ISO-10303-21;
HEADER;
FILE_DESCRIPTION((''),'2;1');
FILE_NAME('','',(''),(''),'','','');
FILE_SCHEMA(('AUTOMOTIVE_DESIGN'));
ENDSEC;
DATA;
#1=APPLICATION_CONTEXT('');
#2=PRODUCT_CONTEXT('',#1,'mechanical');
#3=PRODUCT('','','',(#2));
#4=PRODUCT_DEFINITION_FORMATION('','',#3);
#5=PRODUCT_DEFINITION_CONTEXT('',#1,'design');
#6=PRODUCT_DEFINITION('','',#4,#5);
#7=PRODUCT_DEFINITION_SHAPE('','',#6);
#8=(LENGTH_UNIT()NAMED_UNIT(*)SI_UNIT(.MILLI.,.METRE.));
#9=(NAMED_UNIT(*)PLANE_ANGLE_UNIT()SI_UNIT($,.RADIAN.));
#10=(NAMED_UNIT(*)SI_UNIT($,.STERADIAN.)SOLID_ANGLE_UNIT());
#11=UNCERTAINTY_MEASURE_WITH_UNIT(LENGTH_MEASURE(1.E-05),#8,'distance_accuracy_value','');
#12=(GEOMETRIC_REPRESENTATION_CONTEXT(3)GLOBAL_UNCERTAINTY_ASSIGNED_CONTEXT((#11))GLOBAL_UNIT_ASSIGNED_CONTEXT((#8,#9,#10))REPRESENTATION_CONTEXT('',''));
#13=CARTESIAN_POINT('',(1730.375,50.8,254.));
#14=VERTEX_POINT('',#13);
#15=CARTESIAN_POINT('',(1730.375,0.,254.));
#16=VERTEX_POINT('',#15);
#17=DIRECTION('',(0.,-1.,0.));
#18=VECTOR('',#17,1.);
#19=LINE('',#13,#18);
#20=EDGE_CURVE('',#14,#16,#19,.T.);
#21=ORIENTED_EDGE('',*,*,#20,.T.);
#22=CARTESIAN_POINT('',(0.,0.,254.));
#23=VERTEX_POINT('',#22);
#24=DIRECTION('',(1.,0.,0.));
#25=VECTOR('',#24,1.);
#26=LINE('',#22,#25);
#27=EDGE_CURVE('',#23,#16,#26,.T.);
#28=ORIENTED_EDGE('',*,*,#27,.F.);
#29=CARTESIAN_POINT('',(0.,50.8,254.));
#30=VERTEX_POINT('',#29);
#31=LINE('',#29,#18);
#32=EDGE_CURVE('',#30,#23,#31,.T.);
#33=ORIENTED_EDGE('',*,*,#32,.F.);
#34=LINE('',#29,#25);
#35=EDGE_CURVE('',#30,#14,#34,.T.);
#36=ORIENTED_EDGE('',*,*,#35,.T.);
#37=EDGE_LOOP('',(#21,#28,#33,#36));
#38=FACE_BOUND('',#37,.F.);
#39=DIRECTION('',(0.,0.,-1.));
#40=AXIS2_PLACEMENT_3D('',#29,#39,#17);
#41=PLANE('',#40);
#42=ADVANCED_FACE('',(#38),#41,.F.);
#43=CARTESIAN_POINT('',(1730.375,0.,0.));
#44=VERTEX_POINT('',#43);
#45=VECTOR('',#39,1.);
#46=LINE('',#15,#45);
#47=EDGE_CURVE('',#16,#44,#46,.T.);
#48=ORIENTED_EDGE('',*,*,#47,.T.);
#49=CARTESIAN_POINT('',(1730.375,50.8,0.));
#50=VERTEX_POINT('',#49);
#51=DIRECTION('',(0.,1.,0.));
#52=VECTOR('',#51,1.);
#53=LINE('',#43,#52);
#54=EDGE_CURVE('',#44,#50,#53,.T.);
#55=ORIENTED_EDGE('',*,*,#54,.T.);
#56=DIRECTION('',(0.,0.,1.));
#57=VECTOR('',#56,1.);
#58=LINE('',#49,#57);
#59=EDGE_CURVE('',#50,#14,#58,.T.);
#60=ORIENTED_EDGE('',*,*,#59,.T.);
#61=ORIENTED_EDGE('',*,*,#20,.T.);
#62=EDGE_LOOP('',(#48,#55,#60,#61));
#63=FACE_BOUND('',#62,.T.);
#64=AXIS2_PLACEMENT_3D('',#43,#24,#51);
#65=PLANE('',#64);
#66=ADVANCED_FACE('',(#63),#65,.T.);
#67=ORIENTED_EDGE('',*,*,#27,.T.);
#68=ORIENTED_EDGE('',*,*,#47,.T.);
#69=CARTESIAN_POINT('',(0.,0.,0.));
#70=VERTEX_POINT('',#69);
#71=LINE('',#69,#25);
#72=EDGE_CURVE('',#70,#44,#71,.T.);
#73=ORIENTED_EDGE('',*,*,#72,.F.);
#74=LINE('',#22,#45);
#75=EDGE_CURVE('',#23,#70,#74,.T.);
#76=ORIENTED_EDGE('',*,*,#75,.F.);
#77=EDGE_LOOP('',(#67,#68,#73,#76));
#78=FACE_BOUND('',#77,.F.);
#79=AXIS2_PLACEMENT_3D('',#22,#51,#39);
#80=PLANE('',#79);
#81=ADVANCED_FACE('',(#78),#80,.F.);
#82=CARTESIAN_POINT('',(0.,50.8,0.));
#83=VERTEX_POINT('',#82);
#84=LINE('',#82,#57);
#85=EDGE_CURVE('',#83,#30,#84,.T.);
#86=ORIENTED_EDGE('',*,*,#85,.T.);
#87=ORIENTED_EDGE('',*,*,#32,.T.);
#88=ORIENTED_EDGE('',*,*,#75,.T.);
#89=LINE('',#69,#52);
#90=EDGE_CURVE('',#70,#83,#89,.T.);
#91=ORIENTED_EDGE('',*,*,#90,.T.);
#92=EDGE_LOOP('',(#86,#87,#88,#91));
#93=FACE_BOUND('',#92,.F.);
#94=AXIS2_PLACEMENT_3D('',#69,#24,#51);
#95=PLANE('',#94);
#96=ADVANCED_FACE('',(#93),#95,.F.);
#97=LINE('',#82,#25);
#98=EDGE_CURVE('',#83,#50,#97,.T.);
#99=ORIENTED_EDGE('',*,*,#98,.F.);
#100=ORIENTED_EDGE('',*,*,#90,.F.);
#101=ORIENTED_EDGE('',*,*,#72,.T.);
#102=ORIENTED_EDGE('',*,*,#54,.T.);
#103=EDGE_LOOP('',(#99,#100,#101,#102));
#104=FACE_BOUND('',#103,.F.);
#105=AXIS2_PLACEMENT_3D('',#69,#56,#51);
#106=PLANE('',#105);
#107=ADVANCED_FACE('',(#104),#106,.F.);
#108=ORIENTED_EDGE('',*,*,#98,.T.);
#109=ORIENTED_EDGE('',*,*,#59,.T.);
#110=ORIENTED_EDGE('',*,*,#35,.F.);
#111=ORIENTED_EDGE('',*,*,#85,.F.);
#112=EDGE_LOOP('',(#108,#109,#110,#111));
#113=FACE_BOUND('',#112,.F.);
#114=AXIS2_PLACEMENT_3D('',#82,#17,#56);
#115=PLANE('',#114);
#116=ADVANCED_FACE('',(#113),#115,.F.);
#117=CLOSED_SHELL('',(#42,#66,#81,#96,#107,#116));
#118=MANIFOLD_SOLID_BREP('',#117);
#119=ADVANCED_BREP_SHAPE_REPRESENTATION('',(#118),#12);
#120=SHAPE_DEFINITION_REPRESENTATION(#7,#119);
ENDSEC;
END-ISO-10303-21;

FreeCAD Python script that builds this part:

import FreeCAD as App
import Part
import Sketcher
Q = App.Units.Quantity


def add_polygon(sketch, points):
    """Adds a closed chain of lines whose ends are joined by coincident constraints."""
    first, n = sketch.GeometryCount, len(points)
    for a, b in zip(points, points[1:] + points[:1]):
        sketch.addGeometry(Part.LineSegment(App.Vector(*a, 0), App.Vector(*b, 0)), False)
    for i in range(n):
        sketch.addConstraint(Sketcher.Constraint("Coincident", first + i, 2, first + (i + 1) % n, 1))

doc = App.newDocument("Part")
body = doc.addObject("PartDesign::Body", "Body")

sketch1 = body.newObject("Sketcher::SketchObject", "Sketch")
sketch1.AttachmentSupport = (doc.getObject("YZ_Plane"), [""])
sketch1.MapMode = "FlatFace"
add_polygon(sketch1, [(0, 254), (0, 0), (51, 0), (51, 254)])
sketch1.addConstraint([
    Sketcher.Constraint("Vertical", 0),
    Sketcher.Constraint("Horizontal", 1),
    Sketcher.Constraint("Vertical", 2),
    Sketcher.Constraint("Horizontal", 3),
    Sketcher.Constraint("Coincident", 0, 2, -1, 1),
    Sketcher.Constraint("DistanceX", 1, 1, 1, 2, Q("2 in")),
    Sketcher.Constraint("DistanceY", 0, 2, 0, 1, Q("10 in")),
])
pad1 = body.newObject("PartDesign::Pad", "Pad")
pad1.Profile = sketch1
pad1.Length = Q("68.125 in")

doc.recompute()
